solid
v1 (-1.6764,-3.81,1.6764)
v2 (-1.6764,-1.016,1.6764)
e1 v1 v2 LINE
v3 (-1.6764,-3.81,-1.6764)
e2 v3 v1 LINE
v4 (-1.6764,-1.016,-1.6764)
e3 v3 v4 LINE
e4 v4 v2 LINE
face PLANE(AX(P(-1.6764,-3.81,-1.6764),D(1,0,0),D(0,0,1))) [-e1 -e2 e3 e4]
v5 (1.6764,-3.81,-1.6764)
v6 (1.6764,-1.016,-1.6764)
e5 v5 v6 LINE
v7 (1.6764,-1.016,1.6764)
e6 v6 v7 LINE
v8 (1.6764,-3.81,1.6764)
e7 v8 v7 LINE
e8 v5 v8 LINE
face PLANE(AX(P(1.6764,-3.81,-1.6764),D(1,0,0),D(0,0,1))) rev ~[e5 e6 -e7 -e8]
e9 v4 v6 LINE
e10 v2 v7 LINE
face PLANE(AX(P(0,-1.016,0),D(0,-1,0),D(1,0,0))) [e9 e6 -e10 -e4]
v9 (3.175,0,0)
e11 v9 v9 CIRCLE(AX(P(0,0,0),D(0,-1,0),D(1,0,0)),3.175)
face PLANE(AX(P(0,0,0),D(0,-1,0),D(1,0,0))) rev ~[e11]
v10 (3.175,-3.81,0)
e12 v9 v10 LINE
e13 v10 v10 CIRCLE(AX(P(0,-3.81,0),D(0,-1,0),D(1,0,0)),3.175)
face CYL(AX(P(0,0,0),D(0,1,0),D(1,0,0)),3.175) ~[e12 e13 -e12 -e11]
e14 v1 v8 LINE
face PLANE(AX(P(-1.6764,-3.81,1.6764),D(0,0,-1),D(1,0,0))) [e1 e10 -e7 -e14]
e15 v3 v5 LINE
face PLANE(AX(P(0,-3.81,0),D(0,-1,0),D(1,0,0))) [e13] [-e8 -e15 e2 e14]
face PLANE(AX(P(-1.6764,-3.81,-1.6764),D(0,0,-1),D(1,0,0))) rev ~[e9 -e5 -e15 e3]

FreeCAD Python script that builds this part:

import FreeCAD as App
import Part
import Sketcher

V = App.Vector
Q = App.Units.Quantity


def add_polygon(sketch, points):
    """Adds a closed chain of lines whose ends are joined by coincident constraints."""
    first, n = sketch.GeometryCount, len(points)
    for a, b in zip(points, points[1:] + points[:1]):
        sketch.addGeometry(Part.LineSegment(App.Vector(*a, 0), App.Vector(*b, 0)), False)
    for i in range(n):
        sketch.addConstraint(Sketcher.Constraint("Coincident", first + i, 2, first + (i + 1) % n, 1))

doc = App.newDocument("Part")
body = doc.addObject("PartDesign::Body", "Body")

# Sketch on XZ plane
sketch1 = body.newObject("Sketcher::SketchObject", "Sketch")
sketch1.AttachmentSupport = (doc.getObject("XZ_Plane"), [""])
sketch1.MapMode = "FlatFace"
sketch1.addGeometry(Part.Circle(V(0, 0, 0), V(0, 0, 1), 3.2), False)
sketch1.addConstraint([
    Sketcher.Constraint("Coincident", 0, 3, -1, 1),
    Sketcher.Constraint("Diameter", 0, Q("0.25 in")),
])
pad1 = body.newObject("PartDesign::Pad", "Pad")
pad1.Profile = sketch1
pad1.Length = Q("0.15 in")

# Sketch on XZ plane
sketch2 = body.newObject("Sketcher::SketchObject", "Sketch001")
sketch2.AttachmentSupport = (doc.getObject("XZ_Plane"), [""])
sketch2.MapMode = "FlatFace"
sketch2.AttachmentOffset = App.Placement(V(0, 0, 0.15 * 25.4), App.Rotation())
add_polygon(sketch2, [(-1.7, 1.7), (-1.7, -1.7), (1.7, -1.7), (1.7, 1.7)])  # lines 0-3
sketch2.addConstraint([
    Sketcher.Constraint("Vertical", 0),
    Sketcher.Constraint("Horizontal", 1),
    Sketcher.Constraint("Vertical", 2),
    Sketcher.Constraint("Horizontal", 3),
    Sketcher.Constraint("Symmetric", 0, 2, 2, 2, -1, 1),
    Sketcher.Constraint("Equal", 3, 0),
    Sketcher.Constraint("DistanceX", 1, 1, 1, 2, Q("0.132 in")),
])
pocket1 = body.newObject("PartDesign::Pocket", "Pocket")
pocket1.Profile = sketch2
pocket1.Length = Q("0.11 in")

doc.recompute()
